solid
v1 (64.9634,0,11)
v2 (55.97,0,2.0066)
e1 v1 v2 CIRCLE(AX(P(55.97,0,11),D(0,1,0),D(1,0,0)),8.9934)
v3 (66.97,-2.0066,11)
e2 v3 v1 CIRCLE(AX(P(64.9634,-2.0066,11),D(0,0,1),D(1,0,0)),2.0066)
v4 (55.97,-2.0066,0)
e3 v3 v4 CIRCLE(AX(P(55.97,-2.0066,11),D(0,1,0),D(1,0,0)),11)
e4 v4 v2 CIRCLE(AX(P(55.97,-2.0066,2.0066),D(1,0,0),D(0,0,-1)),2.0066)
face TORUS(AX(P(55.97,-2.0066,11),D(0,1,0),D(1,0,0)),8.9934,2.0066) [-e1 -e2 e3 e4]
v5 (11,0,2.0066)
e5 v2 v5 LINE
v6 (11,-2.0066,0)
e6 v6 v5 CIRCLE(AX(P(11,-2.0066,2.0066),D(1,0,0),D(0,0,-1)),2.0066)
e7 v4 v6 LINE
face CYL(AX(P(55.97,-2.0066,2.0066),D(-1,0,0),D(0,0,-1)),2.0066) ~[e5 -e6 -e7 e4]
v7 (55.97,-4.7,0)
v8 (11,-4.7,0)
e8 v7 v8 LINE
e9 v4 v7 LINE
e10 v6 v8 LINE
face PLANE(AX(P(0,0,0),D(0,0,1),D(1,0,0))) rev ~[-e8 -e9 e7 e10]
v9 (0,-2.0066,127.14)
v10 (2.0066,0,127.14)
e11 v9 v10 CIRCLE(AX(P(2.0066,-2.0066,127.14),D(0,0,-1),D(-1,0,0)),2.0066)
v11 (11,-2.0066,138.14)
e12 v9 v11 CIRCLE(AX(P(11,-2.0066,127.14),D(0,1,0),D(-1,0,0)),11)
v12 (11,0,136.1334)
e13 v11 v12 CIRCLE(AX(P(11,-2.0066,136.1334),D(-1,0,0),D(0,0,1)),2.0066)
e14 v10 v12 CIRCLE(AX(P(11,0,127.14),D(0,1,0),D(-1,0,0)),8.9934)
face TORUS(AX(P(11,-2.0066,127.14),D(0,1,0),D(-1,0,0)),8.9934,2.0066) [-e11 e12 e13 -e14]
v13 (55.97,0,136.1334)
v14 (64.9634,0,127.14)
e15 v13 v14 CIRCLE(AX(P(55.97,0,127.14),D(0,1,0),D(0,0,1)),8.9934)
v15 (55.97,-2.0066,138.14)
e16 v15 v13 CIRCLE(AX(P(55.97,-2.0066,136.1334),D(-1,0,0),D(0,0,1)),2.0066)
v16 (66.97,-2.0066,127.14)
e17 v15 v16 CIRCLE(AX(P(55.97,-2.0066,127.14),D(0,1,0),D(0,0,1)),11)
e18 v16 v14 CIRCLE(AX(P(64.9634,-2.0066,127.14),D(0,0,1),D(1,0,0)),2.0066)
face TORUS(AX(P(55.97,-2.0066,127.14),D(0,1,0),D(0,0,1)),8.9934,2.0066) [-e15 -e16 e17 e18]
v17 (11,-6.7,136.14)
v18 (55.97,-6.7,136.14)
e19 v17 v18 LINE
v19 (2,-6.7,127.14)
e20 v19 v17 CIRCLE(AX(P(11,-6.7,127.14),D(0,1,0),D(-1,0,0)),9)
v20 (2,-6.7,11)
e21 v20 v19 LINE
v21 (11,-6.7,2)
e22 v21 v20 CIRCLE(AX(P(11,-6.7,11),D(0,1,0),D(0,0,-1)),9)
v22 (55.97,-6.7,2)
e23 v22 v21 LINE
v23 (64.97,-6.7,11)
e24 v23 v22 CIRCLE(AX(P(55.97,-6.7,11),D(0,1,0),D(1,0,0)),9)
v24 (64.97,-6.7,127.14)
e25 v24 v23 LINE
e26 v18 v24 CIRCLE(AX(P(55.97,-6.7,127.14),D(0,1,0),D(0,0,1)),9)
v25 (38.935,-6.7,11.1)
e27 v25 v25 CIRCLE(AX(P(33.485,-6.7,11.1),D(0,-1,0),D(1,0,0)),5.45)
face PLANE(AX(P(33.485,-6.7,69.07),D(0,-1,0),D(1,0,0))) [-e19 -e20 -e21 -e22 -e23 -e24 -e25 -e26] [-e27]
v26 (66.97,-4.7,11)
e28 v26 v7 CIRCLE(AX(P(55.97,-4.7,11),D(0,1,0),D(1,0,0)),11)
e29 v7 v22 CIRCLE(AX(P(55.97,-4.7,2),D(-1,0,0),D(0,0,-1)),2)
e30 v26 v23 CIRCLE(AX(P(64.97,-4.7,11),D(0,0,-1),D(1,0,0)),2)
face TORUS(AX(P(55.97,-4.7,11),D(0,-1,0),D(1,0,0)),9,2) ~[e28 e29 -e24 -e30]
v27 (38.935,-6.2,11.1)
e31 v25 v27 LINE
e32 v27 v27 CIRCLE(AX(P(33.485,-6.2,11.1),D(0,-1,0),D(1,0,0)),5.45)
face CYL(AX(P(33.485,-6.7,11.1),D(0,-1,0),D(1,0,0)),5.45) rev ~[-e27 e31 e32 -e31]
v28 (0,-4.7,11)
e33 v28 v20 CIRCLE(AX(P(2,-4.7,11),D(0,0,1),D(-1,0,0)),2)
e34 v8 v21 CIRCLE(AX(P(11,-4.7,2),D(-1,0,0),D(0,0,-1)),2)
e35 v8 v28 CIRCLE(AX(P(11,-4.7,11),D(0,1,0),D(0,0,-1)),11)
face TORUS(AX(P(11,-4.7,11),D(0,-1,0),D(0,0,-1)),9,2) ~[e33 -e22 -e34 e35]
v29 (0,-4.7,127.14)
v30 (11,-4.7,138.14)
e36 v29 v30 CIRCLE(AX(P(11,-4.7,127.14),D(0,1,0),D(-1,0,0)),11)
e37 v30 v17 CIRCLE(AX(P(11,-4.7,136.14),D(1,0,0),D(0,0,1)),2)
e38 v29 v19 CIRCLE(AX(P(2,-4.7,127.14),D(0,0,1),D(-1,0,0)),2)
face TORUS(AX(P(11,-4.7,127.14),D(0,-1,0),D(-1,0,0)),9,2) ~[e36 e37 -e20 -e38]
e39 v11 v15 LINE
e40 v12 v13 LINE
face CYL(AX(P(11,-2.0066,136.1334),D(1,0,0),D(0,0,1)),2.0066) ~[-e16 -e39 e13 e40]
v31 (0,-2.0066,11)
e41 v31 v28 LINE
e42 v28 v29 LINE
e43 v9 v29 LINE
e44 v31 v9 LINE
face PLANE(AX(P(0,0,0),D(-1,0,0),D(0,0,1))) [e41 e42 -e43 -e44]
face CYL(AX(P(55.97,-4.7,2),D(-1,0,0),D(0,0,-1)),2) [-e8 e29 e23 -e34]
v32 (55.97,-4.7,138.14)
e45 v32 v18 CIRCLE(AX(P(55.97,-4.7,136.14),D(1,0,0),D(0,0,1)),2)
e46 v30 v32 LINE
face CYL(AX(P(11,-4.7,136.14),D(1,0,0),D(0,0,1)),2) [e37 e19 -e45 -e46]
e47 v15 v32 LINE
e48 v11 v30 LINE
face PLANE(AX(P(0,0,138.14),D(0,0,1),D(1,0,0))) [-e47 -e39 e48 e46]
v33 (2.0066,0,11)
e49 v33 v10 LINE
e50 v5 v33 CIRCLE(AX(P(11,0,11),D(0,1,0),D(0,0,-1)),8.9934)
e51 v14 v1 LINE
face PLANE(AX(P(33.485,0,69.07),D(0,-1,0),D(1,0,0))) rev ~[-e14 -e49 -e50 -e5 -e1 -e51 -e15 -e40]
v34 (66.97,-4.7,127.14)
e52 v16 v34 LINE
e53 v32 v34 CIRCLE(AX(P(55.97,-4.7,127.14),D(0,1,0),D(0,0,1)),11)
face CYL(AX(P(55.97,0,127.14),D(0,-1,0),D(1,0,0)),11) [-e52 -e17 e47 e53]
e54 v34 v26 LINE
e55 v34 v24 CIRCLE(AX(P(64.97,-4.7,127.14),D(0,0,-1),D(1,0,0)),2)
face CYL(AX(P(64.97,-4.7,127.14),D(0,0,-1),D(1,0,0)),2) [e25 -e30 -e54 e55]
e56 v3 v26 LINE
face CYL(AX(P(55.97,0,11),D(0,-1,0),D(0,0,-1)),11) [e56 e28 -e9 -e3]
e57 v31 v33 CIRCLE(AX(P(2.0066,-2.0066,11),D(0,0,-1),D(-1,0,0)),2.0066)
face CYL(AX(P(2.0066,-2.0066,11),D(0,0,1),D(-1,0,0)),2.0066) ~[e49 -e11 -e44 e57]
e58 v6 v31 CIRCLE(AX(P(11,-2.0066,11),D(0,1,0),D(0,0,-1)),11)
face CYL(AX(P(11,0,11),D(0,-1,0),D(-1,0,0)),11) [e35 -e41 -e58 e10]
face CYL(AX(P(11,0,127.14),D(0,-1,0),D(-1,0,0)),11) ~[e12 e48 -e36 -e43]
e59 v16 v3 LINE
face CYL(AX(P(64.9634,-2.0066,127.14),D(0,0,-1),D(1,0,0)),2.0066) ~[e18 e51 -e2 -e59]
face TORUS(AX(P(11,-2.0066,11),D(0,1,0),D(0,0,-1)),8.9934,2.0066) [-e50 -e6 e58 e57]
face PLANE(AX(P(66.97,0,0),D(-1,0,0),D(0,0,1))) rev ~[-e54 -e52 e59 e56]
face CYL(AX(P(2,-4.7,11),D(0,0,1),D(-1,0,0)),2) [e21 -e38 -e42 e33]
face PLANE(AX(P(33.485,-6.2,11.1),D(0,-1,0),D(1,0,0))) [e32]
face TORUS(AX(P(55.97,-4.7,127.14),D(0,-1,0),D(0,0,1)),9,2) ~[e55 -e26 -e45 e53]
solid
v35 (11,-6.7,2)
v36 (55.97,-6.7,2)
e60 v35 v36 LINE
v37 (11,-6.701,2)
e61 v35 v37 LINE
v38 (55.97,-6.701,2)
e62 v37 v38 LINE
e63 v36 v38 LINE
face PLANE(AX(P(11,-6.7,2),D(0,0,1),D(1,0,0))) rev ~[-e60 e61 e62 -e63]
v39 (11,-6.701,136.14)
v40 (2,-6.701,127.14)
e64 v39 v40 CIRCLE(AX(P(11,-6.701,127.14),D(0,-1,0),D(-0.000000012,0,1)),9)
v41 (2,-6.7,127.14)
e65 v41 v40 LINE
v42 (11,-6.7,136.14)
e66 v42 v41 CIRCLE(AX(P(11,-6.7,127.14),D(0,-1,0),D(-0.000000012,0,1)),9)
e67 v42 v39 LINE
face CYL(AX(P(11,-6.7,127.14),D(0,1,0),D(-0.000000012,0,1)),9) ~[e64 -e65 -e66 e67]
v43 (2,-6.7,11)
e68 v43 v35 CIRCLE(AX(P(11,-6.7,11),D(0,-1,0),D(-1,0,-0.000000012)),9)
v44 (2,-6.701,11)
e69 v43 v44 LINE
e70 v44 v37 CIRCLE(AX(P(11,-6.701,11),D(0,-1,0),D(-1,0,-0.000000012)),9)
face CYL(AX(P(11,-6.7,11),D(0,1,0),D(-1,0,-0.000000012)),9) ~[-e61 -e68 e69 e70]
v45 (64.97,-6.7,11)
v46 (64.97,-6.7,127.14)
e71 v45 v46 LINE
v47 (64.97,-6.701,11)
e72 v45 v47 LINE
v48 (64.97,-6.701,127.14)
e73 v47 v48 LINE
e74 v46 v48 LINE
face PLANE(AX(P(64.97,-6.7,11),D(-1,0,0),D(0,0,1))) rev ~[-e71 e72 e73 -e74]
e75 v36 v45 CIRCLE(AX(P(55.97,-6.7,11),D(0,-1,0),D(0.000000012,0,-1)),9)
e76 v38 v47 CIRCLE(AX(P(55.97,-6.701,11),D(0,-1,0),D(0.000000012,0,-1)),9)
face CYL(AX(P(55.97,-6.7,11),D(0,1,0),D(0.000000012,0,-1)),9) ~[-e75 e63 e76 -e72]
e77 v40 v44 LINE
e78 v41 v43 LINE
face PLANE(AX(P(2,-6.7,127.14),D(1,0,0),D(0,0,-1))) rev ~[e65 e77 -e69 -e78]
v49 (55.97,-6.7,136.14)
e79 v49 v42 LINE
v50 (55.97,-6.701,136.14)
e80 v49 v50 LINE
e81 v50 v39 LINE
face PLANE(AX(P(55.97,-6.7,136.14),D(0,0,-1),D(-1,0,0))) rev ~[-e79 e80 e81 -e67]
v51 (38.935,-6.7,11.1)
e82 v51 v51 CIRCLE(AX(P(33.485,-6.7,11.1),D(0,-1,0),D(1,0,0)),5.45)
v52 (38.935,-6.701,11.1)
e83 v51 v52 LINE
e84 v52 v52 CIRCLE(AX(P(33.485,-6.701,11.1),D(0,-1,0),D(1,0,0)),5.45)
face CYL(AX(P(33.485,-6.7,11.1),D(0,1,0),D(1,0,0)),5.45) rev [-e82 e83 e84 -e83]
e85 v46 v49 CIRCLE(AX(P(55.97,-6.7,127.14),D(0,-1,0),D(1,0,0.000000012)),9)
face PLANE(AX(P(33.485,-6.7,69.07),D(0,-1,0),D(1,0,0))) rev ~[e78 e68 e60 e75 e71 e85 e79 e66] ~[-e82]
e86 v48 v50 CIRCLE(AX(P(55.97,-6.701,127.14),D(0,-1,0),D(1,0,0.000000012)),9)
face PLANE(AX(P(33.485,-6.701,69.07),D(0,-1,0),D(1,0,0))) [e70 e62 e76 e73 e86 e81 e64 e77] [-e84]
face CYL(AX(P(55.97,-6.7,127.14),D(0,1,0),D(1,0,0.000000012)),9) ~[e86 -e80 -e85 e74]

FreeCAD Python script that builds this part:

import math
import FreeCAD as App
import Part
import Sketcher
from FreeCAD import Vector


def edges_at(feature, points):
    """Names of the edges that pass closest to the given points."""
    edges = feature.Shape.Edges
    near = lambda p: min(range(len(edges)), key=lambda i: edges[i].distToShape(Part.Vertex(*p))[0])
    return sorted({f"Edge{near(p) + 1}" for p in points})

doc = App.newDocument("Part")
params = doc.addObject("Spreadsheet::Sheet", "Params")
for row, (alias, value) in enumerate([
    ("sketch1_width", "66.97 mm"),
    ("sketch1_height", "138.14 mm"),
    ("pad1_length", "6.7 mm"),
    ("fillet_radius", "11 mm"),
    ("fillet2_radius", "2 mm"),
    ("fillet3_radius", "2.0066 mm"),
    ("sketch2_diameter", "10.9 mm"),
    ("pad2_length", "0.5 mm"),
    ("sketch3_radius", "9 mm"),
    ("sketch3_diameter", "10.9 mm"),
    ("sketch3_width", "44.97 mm"),
    ("sketch3_height", "116.14 mm"),
    ("pad3_length", "0.001 mm"),
    ("sketch4_diameter", "10.9 mm"),
    ("pad4_length", "0.001 mm"),
    ("sketch5_diameter", "10.9 mm"),
    ("pad5_length", "0.001 mm"),
], start=1):
    params.set(f"A{row}", alias)
    params.set(f"B{row}", "=" + value)
    params.setAlias(f"B{row}", alias)

body = doc.addObject("PartDesign::Body", "Body")

# Sketch on XZ plane
sketch1 = body.newObject("Sketcher::SketchObject", "Sketch")
sketch1.AttachmentSupport = (doc.getObject("XZ_Plane"), [""])
sketch1.MapMode = "FlatFace"
sketch1.addGeometry(Part.LineSegment(Vector(0, 138, 0), Vector(0, 0, 0)), False)
sketch1.addGeometry(Part.LineSegment(Vector(0, 0, 0), Vector(67, 0, 0)), False)
sketch1.addGeometry(Part.LineSegment(Vector(67, 0, 0), Vector(67, 138, 0)), False)
sketch1.addGeometry(Part.LineSegment(Vector(67, 138, 0), Vector(0, 138, 0)), False)
sketch1.addConstraint(Sketcher.Constraint("Coincident", 0, 2, 1, 1))
sketch1.addConstraint(Sketcher.Constraint("Coincident", 1, 2, 2, 1))
sketch1.addConstraint(Sketcher.Constraint("Coincident", 2, 2, 3, 1))
sketch1.addConstraint(Sketcher.Constraint("Coincident", 3, 2, 0, 1))
sketch1.addConstraint(Sketcher.Constraint("Vertical", 0))
sketch1.addConstraint(Sketcher.Constraint("Horizontal", 1))
sketch1.addConstraint(Sketcher.Constraint("Vertical", 2))
sketch1.addConstraint(Sketcher.Constraint("Horizontal", 3))
sketch1.addConstraint(Sketcher.Constraint("Coincident", 0, 2, -1, 1))
sketch1.addConstraint(Sketcher.Constraint("DistanceX", 1, 1, 1, 2, 66.97))
sketch1.addConstraint(Sketcher.Constraint("DistanceY", 0, 2, 0, 1, 138.14))
sketch1.setExpression("Constraints[9]", "Params.sketch1_width")
sketch1.setExpression("Constraints[10]", "Params.sketch1_height")
pad1 = body.newObject("PartDesign::Pad", "Pad")
pad1.Profile = sketch1
pad1.setExpression("Length", "Params.pad1_length")
doc.recompute()

fillet = body.newObject("PartDesign::Fillet", "Fillet")
fillet.Base = (pad1, edges_at(pad1, [
    (0, -3.35, 138.14),
    (66.97, -3.35, 138.14),
    (66.97, -3.35, 0),
    (0, -3.35, 0),
]))
fillet.setExpression("Radius", "Params.fillet_radius")
doc.recompute()

fillet2 = body.newObject("PartDesign::Fillet", "Fillet001")
fillet2.Base = (fillet, edges_at(fillet, [
    (0, -6.7, 69.07),
    (3.222, -6.7, 134.918),
    (3.222, -6.7, 3.222),
    (33.485, -6.7, 138.14),
    (33.485, -6.7, 0),
    (63.748, -6.7, 134.918),
    (63.748, -6.7, 3.222),
    (66.97, -6.7, 69.07),
]))
fillet2.setExpression("Radius", "Params.fillet2_radius")
doc.recompute()

fillet3 = body.newObject("PartDesign::Fillet", "Fillet002")
fillet3.Base = (fillet2, edges_at(fillet2, [
    (0, 0, 69.07),
    (3.222, 0, 134.918),
    (3.222, 0, 3.222),
    (33.485, 0, 138.14),
    (33.485, 0, 0),
    (63.748, 0, 134.918),
    (63.748, 0, 3.222),
    (66.97, 0, 69.07),
]))
fillet3.setExpression("Radius", "Params.fillet3_radius")
body2 = doc.addObject("PartDesign::Body", "Body001")

# Sketch on XZ plane
sketch2 = body2.newObject("Sketcher::SketchObject", "Sketch001")
sketch2.AttachmentSupport = (doc.getObject("XZ_Plane001"), [""])
sketch2.MapMode = "FlatFace"
sketch2.AttachmentOffset = App.Placement(Vector(0, 0, 6.7), App.Rotation())
sketch2.addGeometry(Part.Circle(Vector(33, 11, 0), Vector(0, 0, 1), 5), False)
sketch2.addConstraint(Sketcher.Constraint("Diameter", 0, 10.9))
sketch2.addConstraint(Sketcher.Constraint("DistanceY", -1, 1, 0, 3, 11.1))
sketch2.addConstraint(Sketcher.Constraint("DistanceX", -1, 1, 0, 3, 33.485))
sketch2.setExpression("Constraints[0]", "Params.sketch2_diameter")
pad2 = body2.newObject("PartDesign::Pad", "Pad001")
pad2.Profile = sketch2
pad2.setExpression("Length", "Params.pad2_length")
pad2.Reversed = True
doc.recompute()

boolean = body.newObject("PartDesign::Boolean", "Boolean")
boolean.Type = "Cut"
boolean.addObjects([body2])
body3 = doc.addObject("PartDesign::Body", "Body002")

# Sketch on XZ plane
sketch3 = body3.newObject("Sketcher::SketchObject", "Sketch002")
sketch3.AttachmentSupport = (doc.getObject("XZ_Plane002"), [""])
sketch3.MapMode = "FlatFace"
sketch3.AttachmentOffset = App.Placement(Vector(0, 0, 6.7), App.Rotation())
sketch3.addGeometry(Part.ArcOfCircle(Part.Circle(Vector(11, 127, 0), Vector(0, 0, 1), 9), math.radians(90), math.radians(180)), False)
sketch3.addGeometry(Part.LineSegment(Vector(2, 127, 0), Vector(2, 11, 0)), False)
sketch3.addGeometry(Part.ArcOfCircle(Part.Circle(Vector(11, 11, 0), Vector(0, 0, 1), 9), math.radians(-180), math.radians(-90)), False)
sketch3.addGeometry(Part.LineSegment(Vector(11, 2, 0), Vector(56, 2, 0)), False)
sketch3.addGeometry(Part.ArcOfCircle(Part.Circle(Vector(56, 11, 0), Vector(0, 0, 1), 9), math.radians(-90), math.radians(0)), False)
sketch3.addGeometry(Part.LineSegment(Vector(65, 11, 0), Vector(65, 127, 0)), False)
sketch3.addGeometry(Part.ArcOfCircle(Part.Circle(Vector(56, 127, 0), Vector(0, 0, 1), 9), math.radians(0), math.radians(90)), False)
sketch3.addGeometry(Part.LineSegment(Vector(56, 136, 0), Vector(11, 136, 0)), False)
sketch3.addGeometry(Part.Circle(Vector(33, 11, 0), Vector(0, 0, 1), 5), False)
sketch3.addConstraint(Sketcher.Constraint("Tangent", 0, 2, 1, 1))
sketch3.addConstraint(Sketcher.Constraint("Tangent", 1, 2, 2, 1))
sketch3.addConstraint(Sketcher.Constraint("Tangent", 2, 2, 3, 1))
sketch3.addConstraint(Sketcher.Constraint("Tangent", 3, 2, 4, 1))
sketch3.addConstraint(Sketcher.Constraint("Tangent", 4, 2, 5, 1))
sketch3.addConstraint(Sketcher.Constraint("Tangent", 5, 2, 6, 1))
sketch3.addConstraint(Sketcher.Constraint("Tangent", 6, 2, 7, 1))
sketch3.addConstraint(Sketcher.Constraint("Tangent", 7, 2, 0, 1))
sketch3.addConstraint(Sketcher.Constraint("Vertical", 1))
sketch3.addConstraint(Sketcher.Constraint("Horizontal", 3))
sketch3.addConstraint(Sketcher.Constraint("Vertical", 5))
sketch3.addConstraint(Sketcher.Constraint("Horizontal", 7))
sketch3.addConstraint(Sketcher.Constraint("Equal", 0, 2))
sketch3.addConstraint(Sketcher.Constraint("Equal", 2, 4))
sketch3.addConstraint(Sketcher.Constraint("Equal", 4, 6))
sketch3.addConstraint(Sketcher.Constraint("Radius", 0, 9.0))
sketch3.addConstraint(Sketcher.Constraint("Diameter", 8, 10.9))
sketch3.addConstraint(Sketcher.Constraint("DistanceX", -1, 1, 0, 3, 11.0))
sketch3.addConstraint(Sketcher.Constraint("DistanceY", -1, 1, 2, 3, 11.0))
sketch3.addConstraint(Sketcher.Constraint("DistanceX", 3, 1, 3, 2, 44.97))
sketch3.addConstraint(Sketcher.Constraint("DistanceY", 1, 2, 1, 1, 116.14))
sketch3.addConstraint(Sketcher.Constraint("DistanceY", -1, 1, 8, 3, 11.1))
sketch3.addConstraint(Sketcher.Constraint("DistanceX", -1, 1, 8, 3, 33.485))
sketch3.setExpression("Constraints[15]", "Params.sketch3_radius")
sketch3.setExpression("Constraints[16]", "Params.sketch3_diameter")
sketch3.setExpression("Constraints[19]", "Params.sketch3_width")
sketch3.setExpression("Constraints[20]", "Params.sketch3_height")
pad3 = body3.newObject("PartDesign::Pad", "Pad002")
pad3.Profile = sketch3
pad3.setExpression("Length", "Params.pad3_length")
body4 = doc.addObject("PartDesign::Body", "Body003")

# Sketch on XZ plane
sketch4 = body4.newObject("Sketcher::SketchObject", "Sketch003")
sketch4.AttachmentSupport = (doc.getObject("XZ_Plane003"), [""])
sketch4.MapMode = "FlatFace"
sketch4.AttachmentOffset = App.Placement(Vector(0, 0, 6.7), App.Rotation())
sketch4.addGeometry(Part.Circle(Vector(33, 11, 0), Vector(0, 0, 1), 5), False)
sketch4.addConstraint(Sketcher.Constraint("Diameter", 0, 10.9))
sketch4.addConstraint(Sketcher.Constraint("DistanceY", -1, 1, 0, 3, 11.1))
sketch4.addConstraint(Sketcher.Constraint("DistanceX", -1, 1, 0, 3, 33.485))
sketch4.setExpression("Constraints[0]", "Params.sketch4_diameter")
pad4 = body4.newObject("PartDesign::Pad", "Pad003")
pad4.Profile = sketch4
pad4.setExpression("Length", "Params.pad4_length")
body5 = doc.addObject("PartDesign::Body", "Body004")

# Sketch on XZ plane
sketch5 = body5.newObject("Sketcher::SketchObject", "Sketch004")
sketch5.AttachmentSupport = (doc.getObject("XZ_Plane004"), [""])
sketch5.MapMode = "FlatFace"
sketch5.AttachmentOffset = App.Placement(Vector(0, 0, 6.7), App.Rotation())
sketch5.addGeometry(Part.Circle(Vector(33, 11, 0), Vector(0, 0, 1), 5), False)
sketch5.addConstraint(Sketcher.Constraint("Diameter", 0, 10.9))
sketch5.addConstraint(Sketcher.Constraint("DistanceY", -1, 1, 0, 3, 11.1))
sketch5.addConstraint(Sketcher.Constraint("DistanceX", -1, 1, 0, 3, 33.485))
sketch5.setExpression("Constraints[0]", "Params.sketch5_diameter")
pad5 = body5.newObject("PartDesign::Pad", "Pad004")
pad5.Profile = sketch5
pad5.setExpression("Length", "Params.pad5_length")
pad5.Reversed = True
body4.Visibility = False
body5.Visibility = False

doc.recompute()
